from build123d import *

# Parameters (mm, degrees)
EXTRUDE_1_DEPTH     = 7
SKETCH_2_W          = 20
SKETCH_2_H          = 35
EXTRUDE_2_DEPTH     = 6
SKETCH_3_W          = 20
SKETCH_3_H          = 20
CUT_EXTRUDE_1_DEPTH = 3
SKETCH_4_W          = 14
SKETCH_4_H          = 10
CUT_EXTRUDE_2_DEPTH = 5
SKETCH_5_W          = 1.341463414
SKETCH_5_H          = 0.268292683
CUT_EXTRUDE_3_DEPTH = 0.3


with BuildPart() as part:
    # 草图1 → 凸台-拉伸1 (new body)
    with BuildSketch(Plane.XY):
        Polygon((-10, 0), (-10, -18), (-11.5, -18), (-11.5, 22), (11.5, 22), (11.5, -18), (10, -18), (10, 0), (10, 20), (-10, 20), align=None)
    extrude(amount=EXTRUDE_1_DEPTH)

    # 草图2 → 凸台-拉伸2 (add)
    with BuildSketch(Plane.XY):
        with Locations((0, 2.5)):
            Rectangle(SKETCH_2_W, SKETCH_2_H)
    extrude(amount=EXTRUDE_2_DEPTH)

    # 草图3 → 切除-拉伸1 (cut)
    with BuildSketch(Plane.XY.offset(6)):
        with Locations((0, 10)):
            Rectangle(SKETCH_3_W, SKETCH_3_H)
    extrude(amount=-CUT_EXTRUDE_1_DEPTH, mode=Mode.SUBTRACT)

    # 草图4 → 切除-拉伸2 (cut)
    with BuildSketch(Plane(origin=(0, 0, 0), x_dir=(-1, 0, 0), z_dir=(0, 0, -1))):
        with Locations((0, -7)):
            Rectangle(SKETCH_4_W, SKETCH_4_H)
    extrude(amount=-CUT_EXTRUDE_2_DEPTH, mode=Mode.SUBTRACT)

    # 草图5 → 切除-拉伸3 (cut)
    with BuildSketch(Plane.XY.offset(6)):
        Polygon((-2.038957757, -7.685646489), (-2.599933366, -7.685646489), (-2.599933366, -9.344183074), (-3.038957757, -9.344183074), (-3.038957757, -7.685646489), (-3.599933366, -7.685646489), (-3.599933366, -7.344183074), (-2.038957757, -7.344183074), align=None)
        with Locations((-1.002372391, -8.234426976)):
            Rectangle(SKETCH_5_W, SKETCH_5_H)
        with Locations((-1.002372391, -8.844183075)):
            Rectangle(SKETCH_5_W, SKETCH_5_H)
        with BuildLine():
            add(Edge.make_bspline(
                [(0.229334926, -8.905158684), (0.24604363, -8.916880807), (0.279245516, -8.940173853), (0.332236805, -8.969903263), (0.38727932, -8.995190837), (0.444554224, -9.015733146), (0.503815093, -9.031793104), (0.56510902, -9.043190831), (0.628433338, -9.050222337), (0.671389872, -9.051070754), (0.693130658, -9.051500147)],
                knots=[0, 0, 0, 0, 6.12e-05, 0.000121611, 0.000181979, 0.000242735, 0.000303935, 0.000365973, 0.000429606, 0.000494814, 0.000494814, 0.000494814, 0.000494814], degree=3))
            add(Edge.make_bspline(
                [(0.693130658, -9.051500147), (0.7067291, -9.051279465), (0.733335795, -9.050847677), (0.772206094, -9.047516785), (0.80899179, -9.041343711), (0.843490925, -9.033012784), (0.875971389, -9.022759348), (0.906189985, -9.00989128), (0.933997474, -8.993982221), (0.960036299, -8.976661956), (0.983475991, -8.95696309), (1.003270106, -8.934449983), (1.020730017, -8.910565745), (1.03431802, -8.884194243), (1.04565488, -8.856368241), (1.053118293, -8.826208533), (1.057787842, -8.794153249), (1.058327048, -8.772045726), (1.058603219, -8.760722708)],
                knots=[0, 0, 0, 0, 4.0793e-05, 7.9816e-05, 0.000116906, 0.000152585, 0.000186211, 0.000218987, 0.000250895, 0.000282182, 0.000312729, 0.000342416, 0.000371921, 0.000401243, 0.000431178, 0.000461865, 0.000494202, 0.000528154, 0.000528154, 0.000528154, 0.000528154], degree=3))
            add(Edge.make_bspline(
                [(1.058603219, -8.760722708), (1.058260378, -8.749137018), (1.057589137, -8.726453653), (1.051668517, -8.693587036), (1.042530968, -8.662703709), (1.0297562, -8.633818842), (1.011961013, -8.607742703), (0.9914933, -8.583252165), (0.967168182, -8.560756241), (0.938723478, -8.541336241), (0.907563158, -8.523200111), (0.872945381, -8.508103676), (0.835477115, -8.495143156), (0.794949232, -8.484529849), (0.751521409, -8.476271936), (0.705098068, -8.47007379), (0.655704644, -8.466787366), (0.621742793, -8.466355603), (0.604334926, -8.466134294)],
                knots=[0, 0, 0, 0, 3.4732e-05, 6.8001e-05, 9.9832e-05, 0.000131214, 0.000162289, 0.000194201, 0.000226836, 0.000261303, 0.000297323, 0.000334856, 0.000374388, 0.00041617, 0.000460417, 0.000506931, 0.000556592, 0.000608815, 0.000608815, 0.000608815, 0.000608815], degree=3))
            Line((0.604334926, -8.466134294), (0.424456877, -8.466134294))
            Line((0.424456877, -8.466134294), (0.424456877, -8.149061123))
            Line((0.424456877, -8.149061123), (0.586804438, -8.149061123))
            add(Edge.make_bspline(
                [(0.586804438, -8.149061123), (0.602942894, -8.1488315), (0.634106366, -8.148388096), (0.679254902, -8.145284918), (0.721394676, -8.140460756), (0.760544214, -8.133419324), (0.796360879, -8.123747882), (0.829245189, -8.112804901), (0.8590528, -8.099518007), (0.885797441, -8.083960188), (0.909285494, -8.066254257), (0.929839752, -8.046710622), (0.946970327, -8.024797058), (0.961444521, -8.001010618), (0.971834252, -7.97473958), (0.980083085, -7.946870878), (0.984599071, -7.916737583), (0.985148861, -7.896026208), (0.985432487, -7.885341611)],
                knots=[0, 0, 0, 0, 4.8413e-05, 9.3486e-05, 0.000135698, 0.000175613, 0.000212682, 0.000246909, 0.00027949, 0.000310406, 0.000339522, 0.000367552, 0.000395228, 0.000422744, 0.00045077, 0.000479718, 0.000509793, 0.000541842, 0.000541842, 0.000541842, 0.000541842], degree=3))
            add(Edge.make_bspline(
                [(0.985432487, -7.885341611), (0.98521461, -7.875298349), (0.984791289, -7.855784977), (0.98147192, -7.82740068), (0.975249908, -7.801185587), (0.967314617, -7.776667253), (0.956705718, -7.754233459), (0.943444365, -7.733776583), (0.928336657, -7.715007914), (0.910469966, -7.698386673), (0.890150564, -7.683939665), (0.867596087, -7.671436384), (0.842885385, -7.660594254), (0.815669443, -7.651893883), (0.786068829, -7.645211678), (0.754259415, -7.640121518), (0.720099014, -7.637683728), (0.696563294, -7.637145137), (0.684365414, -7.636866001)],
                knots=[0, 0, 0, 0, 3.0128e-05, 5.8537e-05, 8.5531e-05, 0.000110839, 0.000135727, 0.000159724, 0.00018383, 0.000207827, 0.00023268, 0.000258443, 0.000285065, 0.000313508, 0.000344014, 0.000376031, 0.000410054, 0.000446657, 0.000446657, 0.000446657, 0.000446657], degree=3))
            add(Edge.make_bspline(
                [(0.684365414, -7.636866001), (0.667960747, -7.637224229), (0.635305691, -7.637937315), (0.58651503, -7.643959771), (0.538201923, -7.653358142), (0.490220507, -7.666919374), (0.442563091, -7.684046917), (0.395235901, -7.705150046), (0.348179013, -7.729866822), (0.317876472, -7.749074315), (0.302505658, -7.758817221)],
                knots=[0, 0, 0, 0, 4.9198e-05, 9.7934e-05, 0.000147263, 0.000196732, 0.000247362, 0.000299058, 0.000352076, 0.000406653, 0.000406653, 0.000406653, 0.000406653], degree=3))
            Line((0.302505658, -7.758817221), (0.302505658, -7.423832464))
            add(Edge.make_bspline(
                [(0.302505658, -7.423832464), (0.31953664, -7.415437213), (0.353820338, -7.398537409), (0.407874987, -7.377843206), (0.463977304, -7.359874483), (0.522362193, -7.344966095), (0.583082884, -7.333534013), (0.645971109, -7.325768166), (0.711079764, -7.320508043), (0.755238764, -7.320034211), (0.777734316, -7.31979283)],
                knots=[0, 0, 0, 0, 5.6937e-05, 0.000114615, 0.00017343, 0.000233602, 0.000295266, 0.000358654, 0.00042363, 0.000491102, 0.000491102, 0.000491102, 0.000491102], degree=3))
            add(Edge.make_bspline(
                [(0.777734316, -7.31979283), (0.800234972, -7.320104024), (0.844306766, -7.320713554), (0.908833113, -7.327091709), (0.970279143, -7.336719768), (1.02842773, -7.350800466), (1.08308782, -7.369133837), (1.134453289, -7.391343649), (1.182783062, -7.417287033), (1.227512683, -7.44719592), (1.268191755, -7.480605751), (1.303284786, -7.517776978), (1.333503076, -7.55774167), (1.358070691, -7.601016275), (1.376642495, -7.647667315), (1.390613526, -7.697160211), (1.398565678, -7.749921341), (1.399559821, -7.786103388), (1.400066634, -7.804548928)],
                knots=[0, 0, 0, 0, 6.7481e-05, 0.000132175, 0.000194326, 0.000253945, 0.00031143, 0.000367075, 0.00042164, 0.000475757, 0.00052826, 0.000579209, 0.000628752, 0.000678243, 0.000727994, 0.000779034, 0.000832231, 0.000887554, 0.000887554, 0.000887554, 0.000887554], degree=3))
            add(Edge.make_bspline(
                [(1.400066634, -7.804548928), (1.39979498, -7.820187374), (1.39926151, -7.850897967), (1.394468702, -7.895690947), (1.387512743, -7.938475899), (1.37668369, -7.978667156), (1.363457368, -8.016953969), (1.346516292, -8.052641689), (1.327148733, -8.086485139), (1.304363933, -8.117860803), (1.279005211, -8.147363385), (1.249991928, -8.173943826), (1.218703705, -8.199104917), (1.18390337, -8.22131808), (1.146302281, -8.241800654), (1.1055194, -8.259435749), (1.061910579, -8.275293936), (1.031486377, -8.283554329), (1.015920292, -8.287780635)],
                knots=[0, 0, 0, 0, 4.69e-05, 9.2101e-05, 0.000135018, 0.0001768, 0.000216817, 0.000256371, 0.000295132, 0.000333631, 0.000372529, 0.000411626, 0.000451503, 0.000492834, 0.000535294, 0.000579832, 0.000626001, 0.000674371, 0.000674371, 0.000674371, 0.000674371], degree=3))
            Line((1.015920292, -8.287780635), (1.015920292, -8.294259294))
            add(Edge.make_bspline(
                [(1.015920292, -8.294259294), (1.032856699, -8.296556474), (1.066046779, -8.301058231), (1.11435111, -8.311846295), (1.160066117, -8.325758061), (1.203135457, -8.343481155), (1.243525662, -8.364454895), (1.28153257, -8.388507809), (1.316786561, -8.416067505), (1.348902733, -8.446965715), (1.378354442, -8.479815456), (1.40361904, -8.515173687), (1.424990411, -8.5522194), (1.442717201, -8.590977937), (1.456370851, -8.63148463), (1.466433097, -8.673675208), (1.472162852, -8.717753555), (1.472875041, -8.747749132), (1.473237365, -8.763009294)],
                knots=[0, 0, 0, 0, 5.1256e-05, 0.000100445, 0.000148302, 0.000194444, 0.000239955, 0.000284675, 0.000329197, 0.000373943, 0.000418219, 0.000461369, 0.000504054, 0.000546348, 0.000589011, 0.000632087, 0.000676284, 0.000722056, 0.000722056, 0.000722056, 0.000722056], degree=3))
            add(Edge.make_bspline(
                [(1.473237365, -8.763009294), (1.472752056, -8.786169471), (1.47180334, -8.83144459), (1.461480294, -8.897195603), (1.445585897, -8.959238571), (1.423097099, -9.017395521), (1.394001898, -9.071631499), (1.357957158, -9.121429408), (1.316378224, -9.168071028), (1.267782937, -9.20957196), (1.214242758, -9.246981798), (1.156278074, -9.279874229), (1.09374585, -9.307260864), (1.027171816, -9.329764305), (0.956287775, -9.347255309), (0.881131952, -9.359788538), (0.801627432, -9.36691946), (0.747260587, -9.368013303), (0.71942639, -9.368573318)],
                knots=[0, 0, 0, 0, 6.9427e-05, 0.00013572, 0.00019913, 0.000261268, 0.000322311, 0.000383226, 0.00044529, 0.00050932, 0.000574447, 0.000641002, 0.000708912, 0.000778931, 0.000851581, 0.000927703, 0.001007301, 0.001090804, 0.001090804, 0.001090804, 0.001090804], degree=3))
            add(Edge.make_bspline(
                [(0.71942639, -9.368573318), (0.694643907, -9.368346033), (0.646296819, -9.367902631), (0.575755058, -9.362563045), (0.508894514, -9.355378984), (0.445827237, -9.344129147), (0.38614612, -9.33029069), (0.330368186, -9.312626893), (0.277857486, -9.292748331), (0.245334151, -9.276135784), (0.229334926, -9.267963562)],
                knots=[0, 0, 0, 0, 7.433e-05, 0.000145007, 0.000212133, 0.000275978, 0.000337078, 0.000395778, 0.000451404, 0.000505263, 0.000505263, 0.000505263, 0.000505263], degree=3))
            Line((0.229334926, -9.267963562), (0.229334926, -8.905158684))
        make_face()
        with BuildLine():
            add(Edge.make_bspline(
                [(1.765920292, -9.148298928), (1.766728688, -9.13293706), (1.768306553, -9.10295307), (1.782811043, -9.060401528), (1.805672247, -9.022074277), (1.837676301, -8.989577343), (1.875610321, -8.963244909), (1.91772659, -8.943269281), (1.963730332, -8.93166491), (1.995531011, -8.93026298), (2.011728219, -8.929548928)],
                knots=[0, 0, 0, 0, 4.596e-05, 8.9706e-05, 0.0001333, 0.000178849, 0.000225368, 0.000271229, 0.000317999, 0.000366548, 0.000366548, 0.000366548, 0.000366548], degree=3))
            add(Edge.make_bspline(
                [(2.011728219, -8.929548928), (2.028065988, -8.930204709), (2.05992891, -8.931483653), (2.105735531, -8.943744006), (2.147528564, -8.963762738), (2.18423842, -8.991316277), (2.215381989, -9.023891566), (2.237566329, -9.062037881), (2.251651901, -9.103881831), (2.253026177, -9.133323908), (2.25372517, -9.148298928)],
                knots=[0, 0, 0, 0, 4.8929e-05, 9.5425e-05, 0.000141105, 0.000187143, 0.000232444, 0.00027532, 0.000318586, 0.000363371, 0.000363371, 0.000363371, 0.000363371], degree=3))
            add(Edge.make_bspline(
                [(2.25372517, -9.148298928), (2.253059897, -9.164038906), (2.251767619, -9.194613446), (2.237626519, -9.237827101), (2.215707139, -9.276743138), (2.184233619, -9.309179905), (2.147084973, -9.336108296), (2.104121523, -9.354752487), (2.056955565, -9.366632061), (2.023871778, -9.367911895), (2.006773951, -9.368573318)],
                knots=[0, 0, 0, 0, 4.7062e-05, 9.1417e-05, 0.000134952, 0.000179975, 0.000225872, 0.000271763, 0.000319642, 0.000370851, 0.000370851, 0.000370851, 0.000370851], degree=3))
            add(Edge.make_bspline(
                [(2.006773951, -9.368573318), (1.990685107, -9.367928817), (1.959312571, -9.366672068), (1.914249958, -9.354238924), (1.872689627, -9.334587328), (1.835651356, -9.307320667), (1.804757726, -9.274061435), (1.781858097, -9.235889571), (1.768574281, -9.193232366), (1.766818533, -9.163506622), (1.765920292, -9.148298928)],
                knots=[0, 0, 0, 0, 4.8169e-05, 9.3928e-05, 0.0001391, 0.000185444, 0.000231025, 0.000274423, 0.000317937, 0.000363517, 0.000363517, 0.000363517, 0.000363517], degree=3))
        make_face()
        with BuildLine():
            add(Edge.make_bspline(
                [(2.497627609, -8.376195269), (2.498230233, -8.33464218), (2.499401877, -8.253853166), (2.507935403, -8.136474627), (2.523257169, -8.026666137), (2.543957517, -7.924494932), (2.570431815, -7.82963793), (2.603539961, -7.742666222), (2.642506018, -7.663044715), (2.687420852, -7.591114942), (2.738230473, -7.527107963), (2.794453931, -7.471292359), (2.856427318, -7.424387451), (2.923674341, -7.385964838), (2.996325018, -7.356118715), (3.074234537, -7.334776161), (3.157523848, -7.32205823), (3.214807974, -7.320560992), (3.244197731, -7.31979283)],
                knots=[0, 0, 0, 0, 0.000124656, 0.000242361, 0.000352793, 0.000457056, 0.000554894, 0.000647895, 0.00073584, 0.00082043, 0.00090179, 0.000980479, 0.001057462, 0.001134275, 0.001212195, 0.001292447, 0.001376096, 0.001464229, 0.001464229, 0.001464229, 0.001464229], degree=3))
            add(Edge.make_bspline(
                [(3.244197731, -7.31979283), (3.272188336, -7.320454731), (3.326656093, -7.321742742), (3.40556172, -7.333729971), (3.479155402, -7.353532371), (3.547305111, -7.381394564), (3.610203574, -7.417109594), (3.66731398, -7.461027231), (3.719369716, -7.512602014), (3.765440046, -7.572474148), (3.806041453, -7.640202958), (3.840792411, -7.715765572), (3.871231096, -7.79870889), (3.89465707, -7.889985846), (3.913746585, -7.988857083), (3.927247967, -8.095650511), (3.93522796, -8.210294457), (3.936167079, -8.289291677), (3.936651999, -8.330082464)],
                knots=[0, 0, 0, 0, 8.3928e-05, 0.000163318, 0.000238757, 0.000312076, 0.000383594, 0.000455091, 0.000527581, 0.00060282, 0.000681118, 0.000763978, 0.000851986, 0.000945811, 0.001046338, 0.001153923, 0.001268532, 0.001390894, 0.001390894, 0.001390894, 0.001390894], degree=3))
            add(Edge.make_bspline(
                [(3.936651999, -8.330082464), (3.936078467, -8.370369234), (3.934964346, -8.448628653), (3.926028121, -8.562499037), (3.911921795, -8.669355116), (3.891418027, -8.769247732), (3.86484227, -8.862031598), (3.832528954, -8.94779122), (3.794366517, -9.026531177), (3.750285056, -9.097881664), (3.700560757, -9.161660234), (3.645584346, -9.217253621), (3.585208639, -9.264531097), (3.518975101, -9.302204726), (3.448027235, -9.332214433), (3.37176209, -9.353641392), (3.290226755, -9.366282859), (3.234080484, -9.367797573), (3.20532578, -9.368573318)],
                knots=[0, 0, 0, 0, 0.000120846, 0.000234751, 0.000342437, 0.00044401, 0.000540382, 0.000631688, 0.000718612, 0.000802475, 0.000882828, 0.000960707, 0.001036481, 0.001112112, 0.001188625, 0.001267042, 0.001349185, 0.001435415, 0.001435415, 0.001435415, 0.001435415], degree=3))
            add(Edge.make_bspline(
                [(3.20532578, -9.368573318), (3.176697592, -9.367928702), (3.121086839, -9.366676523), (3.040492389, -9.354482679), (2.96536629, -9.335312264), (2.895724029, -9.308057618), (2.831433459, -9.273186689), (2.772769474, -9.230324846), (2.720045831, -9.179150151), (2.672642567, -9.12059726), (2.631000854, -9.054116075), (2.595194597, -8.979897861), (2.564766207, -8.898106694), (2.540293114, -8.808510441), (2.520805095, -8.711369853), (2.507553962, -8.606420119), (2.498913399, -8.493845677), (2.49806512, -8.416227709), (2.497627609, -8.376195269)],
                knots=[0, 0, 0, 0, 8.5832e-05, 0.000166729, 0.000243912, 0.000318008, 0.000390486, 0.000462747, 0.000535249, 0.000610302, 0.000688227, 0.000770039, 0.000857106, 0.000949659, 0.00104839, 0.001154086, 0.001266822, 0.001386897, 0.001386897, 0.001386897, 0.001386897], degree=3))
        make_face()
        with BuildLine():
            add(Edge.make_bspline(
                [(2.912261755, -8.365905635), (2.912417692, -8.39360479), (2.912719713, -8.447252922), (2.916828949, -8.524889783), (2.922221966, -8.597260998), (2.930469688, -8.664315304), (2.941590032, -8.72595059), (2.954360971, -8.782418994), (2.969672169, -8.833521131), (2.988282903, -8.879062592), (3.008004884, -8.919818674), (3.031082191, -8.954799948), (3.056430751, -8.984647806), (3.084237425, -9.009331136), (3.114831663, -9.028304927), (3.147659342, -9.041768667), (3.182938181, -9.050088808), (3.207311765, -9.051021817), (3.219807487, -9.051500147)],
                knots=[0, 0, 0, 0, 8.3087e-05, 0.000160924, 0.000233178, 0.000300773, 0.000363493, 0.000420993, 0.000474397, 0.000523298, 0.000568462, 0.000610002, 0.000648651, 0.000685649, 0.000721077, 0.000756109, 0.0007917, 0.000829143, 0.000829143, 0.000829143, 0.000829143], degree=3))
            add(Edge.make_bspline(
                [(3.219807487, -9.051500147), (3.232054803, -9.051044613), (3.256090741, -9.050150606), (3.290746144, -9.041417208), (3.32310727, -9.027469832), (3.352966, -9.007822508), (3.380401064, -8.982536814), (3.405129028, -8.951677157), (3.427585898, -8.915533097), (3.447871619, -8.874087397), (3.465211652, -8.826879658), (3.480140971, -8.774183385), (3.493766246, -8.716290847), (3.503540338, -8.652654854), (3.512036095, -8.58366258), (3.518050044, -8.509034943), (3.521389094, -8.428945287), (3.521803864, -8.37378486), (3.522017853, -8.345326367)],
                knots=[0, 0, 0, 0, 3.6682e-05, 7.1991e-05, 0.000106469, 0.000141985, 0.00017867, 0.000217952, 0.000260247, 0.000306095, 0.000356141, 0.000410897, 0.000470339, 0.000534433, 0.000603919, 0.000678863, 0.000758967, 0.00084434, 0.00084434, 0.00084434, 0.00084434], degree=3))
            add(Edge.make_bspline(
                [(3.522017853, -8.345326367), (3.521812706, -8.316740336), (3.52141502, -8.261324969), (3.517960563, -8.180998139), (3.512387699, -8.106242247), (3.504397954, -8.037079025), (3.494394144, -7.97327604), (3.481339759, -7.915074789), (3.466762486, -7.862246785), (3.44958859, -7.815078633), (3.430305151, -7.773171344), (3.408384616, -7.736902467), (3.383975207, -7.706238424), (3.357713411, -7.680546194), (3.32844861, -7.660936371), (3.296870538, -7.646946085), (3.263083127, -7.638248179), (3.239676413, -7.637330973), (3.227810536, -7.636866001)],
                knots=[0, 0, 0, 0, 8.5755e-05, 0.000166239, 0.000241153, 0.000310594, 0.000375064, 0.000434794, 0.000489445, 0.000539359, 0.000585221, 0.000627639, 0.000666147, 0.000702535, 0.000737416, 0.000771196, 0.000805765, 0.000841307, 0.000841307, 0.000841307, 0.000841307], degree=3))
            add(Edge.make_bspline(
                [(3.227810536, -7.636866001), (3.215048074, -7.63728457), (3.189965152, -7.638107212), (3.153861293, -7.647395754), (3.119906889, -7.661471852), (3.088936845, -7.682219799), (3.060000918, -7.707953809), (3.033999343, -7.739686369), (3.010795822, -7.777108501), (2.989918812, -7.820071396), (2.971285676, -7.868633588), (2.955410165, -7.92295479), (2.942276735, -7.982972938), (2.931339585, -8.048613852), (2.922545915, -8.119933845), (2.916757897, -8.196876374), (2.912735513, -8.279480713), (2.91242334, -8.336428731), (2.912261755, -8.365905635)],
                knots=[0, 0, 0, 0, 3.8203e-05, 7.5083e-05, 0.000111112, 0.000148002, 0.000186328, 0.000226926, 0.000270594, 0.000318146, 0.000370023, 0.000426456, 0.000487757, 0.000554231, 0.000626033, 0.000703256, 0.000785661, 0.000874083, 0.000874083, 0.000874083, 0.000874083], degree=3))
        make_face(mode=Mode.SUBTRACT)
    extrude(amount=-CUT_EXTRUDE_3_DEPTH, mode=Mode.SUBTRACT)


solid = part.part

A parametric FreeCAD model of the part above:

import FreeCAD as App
import Part
import Sketcher

V = App.Vector

doc = App.newDocument("Part")
body = doc.addObject("PartDesign::Body", "Body")

# Sketch on XY plane
sketch1 = body.newObject("Sketcher::SketchObject", "Sketch")
sketch1.AttachmentSupport = (doc.getObject("XY_Plane"), [""])
sketch1.MapMode = "FlatFace"
sketch1.addGeometry(Part.LineSegment(V(-10, -18, 0), V(-10, 20, 0)), False)
sketch1.addGeometry(Part.LineSegment(V(-10, 20, 0), V(10, 20, 0)), False)
sketch1.addGeometry(Part.LineSegment(V(10, 20, 0), V(10, -18, 0)), False)
sketch1.addGeometry(Part.LineSegment(V(10, -18, 0), V(11.5, -18, 0)), False)
sketch1.addGeometry(Part.LineSegment(V(11.5, -18, 0), V(11.5, 22, 0)), False)
sketch1.addGeometry(Part.LineSegment(V(11.5, 22, 0), V(-11.5, 22, 0)), False)
sketch1.addGeometry(Part.LineSegment(V(-11.5, 22, 0), V(-11.5, -18, 0)), False)
sketch1.addGeometry(Part.LineSegment(V(-11.5, -18, 0), V(-10, -18, 0)), False)
sketch1.addConstraint(Sketcher.Constraint("Coincident", 0, 2, 1, 1))
sketch1.addConstraint(Sketcher.Constraint("Coincident", 1, 2, 2, 1))
sketch1.addConstraint(Sketcher.Constraint("Coincident", 2, 2, 3, 1))
sketch1.addConstraint(Sketcher.Constraint("Coincident", 3, 2, 4, 1))
sketch1.addConstraint(Sketcher.Constraint("Coincident", 4, 2, 5, 1))
sketch1.addConstraint(Sketcher.Constraint("Coincident", 5, 2, 6, 1))
sketch1.addConstraint(Sketcher.Constraint("Coincident", 6, 2, 7, 1))
sketch1.addConstraint(Sketcher.Constraint("Coincident", 7, 2, 0, 1))
sketch1.addConstraint(Sketcher.Constraint("Vertical", 0))
sketch1.addConstraint(Sketcher.Constraint("Horizontal", 1))
sketch1.addConstraint(Sketcher.Constraint("Vertical", 2))
sketch1.addConstraint(Sketcher.Constraint("Horizontal", 3))
sketch1.addConstraint(Sketcher.Constraint("Vertical", 4))
sketch1.addConstraint(Sketcher.Constraint("Horizontal", 5))
sketch1.addConstraint(Sketcher.Constraint("Vertical", 6))
sketch1.addConstraint(Sketcher.Constraint("Horizontal", 7))
sketch1.addConstraint(Sketcher.Constraint("Symmetric", 3, 2, 6, 2, -2))
sketch1.addConstraint(Sketcher.Constraint("Equal", 3, 7))
sketch1.addConstraint(Sketcher.Constraint("DistanceX", 1, 1, 1, 2, 20.0))
sketch1.addConstraint(Sketcher.Constraint("DistanceX", 5, 2, 5, 1, 23.0))
sketch1.addConstraint(Sketcher.Constraint("DistanceY", 0, 1, 0, 2, 38.0))
sketch1.addConstraint(Sketcher.Constraint("DistanceY", 4, 1, 4, 2, 40.0))
sketch1.addConstraint(Sketcher.Constraint("DistanceY", -1, 1, 0, 2, 20.0))
pad1 = body.newObject("PartDesign::Pad", "Pad")
pad1.Profile = sketch1
pad1.Length = 7

# Sketch on XY plane
sketch2 = body.newObject("Sketcher::SketchObject", "Sketch001")
sketch2.AttachmentSupport = (doc.getObject("XY_Plane"), [""])
sketch2.MapMode = "FlatFace"
sketch2.addGeometry(Part.LineSegment(V(-10, 20, 0), V(-10, -15, 0)), False)
sketch2.addGeometry(Part.LineSegment(V(-10, -15, 0), V(10, -15, 0)), False)
sketch2.addGeometry(Part.LineSegment(V(10, -15, 0), V(10, 20, 0)), False)
sketch2.addGeometry(Part.LineSegment(V(10, 20, 0), V(-10, 20, 0)), False)
sketch2.addConstraint(Sketcher.Constraint("Coincident", 0, 2, 1, 1))
sketch2.addConstraint(Sketcher.Constraint("Coincident", 1, 2, 2, 1))
sketch2.addConstraint(Sketcher.Constraint("Coincident", 2, 2, 3, 1))
sketch2.addConstraint(Sketcher.Constraint("Coincident", 3, 2, 0, 1))
sketch2.addConstraint(Sketcher.Constraint("Vertical", 0))
sketch2.addConstraint(Sketcher.Constraint("Horizontal", 1))
sketch2.addConstraint(Sketcher.Constraint("Vertical", 2))
sketch2.addConstraint(Sketcher.Constraint("Horizontal", 3))
sketch2.addConstraint(Sketcher.Constraint("DistanceX", 1, 1, 1, 2, 20.0))
sketch2.addConstraint(Sketcher.Constraint("DistanceY", 0, 2, 0, 1, 35.0))
sketch2.addConstraint(Sketcher.Constraint("DistanceX", 0, 2, -1, 1, 10.0))
sketch2.addConstraint(Sketcher.Constraint("DistanceY", 0, 2, -1, 1, 15.0))
pad2 = body.newObject("PartDesign::Pad", "Pad001")
pad2.Profile = sketch2
pad2.Length = 6

# Sketch on XY plane
sketch3 = body.newObject("Sketcher::SketchObject", "Sketch002")
sketch3.AttachmentSupport = (doc.getObject("XY_Plane"), [""])
sketch3.MapMode = "FlatFace"
sketch3.AttachmentOffset = App.Placement(V(0, 0, 6), App.Rotation())
sketch3.addGeometry(Part.LineSegment(V(-10, 20, 0), V(-10, 0, 0)), False)
sketch3.addGeometry(Part.LineSegment(V(-10, 0, 0), V(10, 0, 0)), False)
sketch3.addGeometry(Part.LineSegment(V(10, 0, 0), V(10, 20, 0)), False)
sketch3.addGeometry(Part.LineSegment(V(10, 20, 0), V(-10, 20, 0)), False)
sketch3.addConstraint(Sketcher.Constraint("Coincident", 0, 2, 1, 1))
sketch3.addConstraint(Sketcher.Constraint("Coincident", 1, 2, 2, 1))
sketch3.addConstraint(Sketcher.Constraint("Coincident", 2, 2, 3, 1))
sketch3.addConstraint(Sketcher.Constraint("Coincident", 3, 2, 0, 1))
sketch3.addConstraint(Sketcher.Constraint("Vertical", 0))
sketch3.addConstraint(Sketcher.Constraint("Horizontal", 1))
sketch3.addConstraint(Sketcher.Constraint("Vertical", 2))
sketch3.addConstraint(Sketcher.Constraint("Horizontal", 3))
sketch3.addConstraint(Sketcher.Constraint("Symmetric", 0, 2, 1, 2, -1, 1))
sketch3.addConstraint(Sketcher.Constraint("Equal", 3, 0))
sketch3.addConstraint(Sketcher.Constraint("DistanceX", 1, 1, 1, 2, 20.0))
pocket1 = body.newObject("PartDesign::Pocket", "Pocket")
pocket1.Profile = sketch3
pocket1.Length = 3

# Sketch on XY plane
sketch4 = body.newObject("Sketcher::SketchObject", "Sketch003")
sketch4.AttachmentSupport = (doc.getObject("XY_Plane"), [""])
sketch4.MapMode = "FlatFace"
sketch4.addGeometry(Part.LineSegment(V(7, -2, 0), V(7, -12, 0)), False)
sketch4.addGeometry(Part.LineSegment(V(7, -12, 0), V(-7, -12, 0)), False)
sketch4.addGeometry(Part.LineSegment(V(-7, -12, 0), V(-7, -2, 0)), False)
sketch4.addGeometry(Part.LineSegment(V(-7, -2, 0), V(7, -2, 0)), False)
sketch4.addConstraint(Sketcher.Constraint("Coincident", 0, 2, 1, 1))
sketch4.addConstraint(Sketcher.Constraint("Coincident", 1, 2, 2, 1))
sketch4.addConstraint(Sketcher.Constraint("Coincident", 2, 2, 3, 1))
sketch4.addConstraint(Sketcher.Constraint("Coincident", 3, 2, 0, 1))
sketch4.addConstraint(Sketcher.Constraint("Vertical", 0))
sketch4.addConstraint(Sketcher.Constraint("Horizontal", 1))
sketch4.addConstraint(Sketcher.Constraint("Vertical", 2))
sketch4.addConstraint(Sketcher.Constraint("Horizontal", 3))
sketch4.addConstraint(Sketcher.Constraint("DistanceX", 1, 2, 1, 1, 14.0))
sketch4.addConstraint(Sketcher.Constraint("DistanceY", 0, 2, 0, 1, 10.0))
sketch4.addConstraint(Sketcher.Constraint("DistanceX", -1, 1, 0, 2, 7.0))
sketch4.addConstraint(Sketcher.Constraint("DistanceY", 0, 2, -1, 1, 12.0))
pocket2 = body.newObject("PartDesign::Pocket", "Pocket001")
pocket2.Profile = sketch4
pocket2.Length = 5
pocket2.Reversed = True

# Sketch on XY plane
sketch5 = body.newObject("Sketcher::SketchObject", "Sketch004")
sketch5.AttachmentSupport = (doc.getObject("XY_Plane"), [""])
sketch5.MapMode = "FlatFace"
sketch5.AttachmentOffset = App.Placement(V(0, 0, 6), App.Rotation())
sketch5.addGeometry(Part.LineSegment(V(-2.599933, -7.685646, 0), V(-2.038958, -7.685646, 0)), False)
sketch5.addGeometry(Part.LineSegment(V(-2.038958, -7.685646, 0), V(-2.038958, -7.344183, 0)), False)
sketch5.addGeometry(Part.LineSegment(V(-2.038958, -7.344183, 0), V(-3.599933, -7.344183, 0)), False)
sketch5.addGeometry(Part.LineSegment(V(-3.599933, -7.344183, 0), V(-3.599933, -7.685646, 0)), False)
sketch5.addGeometry(Part.LineSegment(V(-3.599933, -7.685646, 0), V(-3.038958, -7.685646, 0)), False)
sketch5.addGeometry(Part.LineSegment(V(-3.038958, -7.685646, 0), V(-3.038958, -9.344183, 0)), False)
sketch5.addGeometry(Part.LineSegment(V(-3.038958, -9.344183, 0), V(-2.599933, -9.344183, 0)), False)
sketch5.addGeometry(Part.LineSegment(V(-2.599933, -9.344183, 0), V(-2.599933, -7.685646, 0)), False)
sketch5.addGeometry(Part.LineSegment(V(-1.673104, -8.100281, 0), V(-1.673104, -8.368573, 0)), False)
sketch5.addGeometry(Part.LineSegment(V(-1.673104, -8.368573, 0), V(-0.331641, -8.368573, 0)), False)
sketch5.addGeometry(Part.LineSegment(V(-0.331641, -8.368573, 0), V(-0.331641, -8.100281, 0)), False)
sketch5.addGeometry(Part.LineSegment(V(-0.331641, -8.100281, 0), V(-1.673104, -8.100281, 0)), False)
sketch5.addGeometry(Part.LineSegment(V(-1.673104, -8.710037, 0), V(-1.673104, -8.978329, 0)), False)
sketch5.addGeometry(Part.LineSegment(V(-1.673104, -8.978329, 0), V(-0.331641, -8.978329, 0)), False)
sketch5.addGeometry(Part.LineSegment(V(-0.331641, -8.978329, 0), V(-0.331641, -8.710037, 0)), False)
sketch5.addGeometry(Part.LineSegment(V(-0.331641, -8.710037, 0), V(-1.673104, -8.710037, 0)), False)
sketch5.addGeometry(Part.BSplineCurve([V(0.229335, -8.905159, 0), V(0.246044, -8.916881, 0), V(0.279246, -8.940174, 0), V(0.332237, -8.969903, 0), V(0.387279, -8.995191, 0), V(0.444554, -9.015733, 0), V(0.503815, -9.031793, 0), V(0.565109, -9.043191, 0), V(0.628433, -9.050222, 0), V(0.67139, -9.051071, 0), V(0.693131, -9.0515, 0)], [4, 1, 1, 1, 1, 1, 1, 1, 4], [0, 0.0000612, 0.000121611, 0.000181979, 0.000242735, 0.000303935, 0.000365973, 0.000429606, 0.000494814], False, 3, [1, 1, 1, 1, 1, 1, 1, 1, 1, 1, 1], False), False)
sketch5.addGeometry(Part.LineSegment(V(0.229335, -8.905159, 0), V(0.229335, -9.267964, 0)), False)
sketch5.addGeometry(Part.BSplineCurve([V(0.719426, -9.368573, 0), V(0.694644, -9.368346, 0), V(0.646297, -9.367903, 0), V(0.575755, -9.362563, 0), V(0.508895, -9.355379, 0), V(0.445827, -9.344129, 0), V(0.386146, -9.330291, 0), V(0.330368, -9.312627, 0), V(0.277857, -9.292748, 0), V(0.245334, -9.276136, 0), V(0.229335, -9.267964, 0)], [4, 1, 1, 1, 1, 1, 1, 1, 4], [0, 0.00007433, 0.000145007, 0.000212133, 0.000275978, 0.000337078, 0.000395778, 0.000451404, 0.000505263], False, 3, [1, 1, 1, 1, 1, 1, 1, 1, 1, 1, 1], False), False)
sketch5.addGeometry(Part.BSplineCurve([V(1.473237, -8.763009, 0), V(1.472752, -8.786169, 0), V(1.471803, -8.831445, 0), V(1.46148, -8.897196, 0), V(1.445586, -8.959239, 0), V(1.423097, -9.017396, 0), V(1.394002, -9.071631, 0), V(1.357957, -9.121429, 0), V(1.316378, -9.168071, 0), V(1.267783, -9.209572, 0), V(1.214243, -9.246982, 0), V(1.156278, -9.279874, 0), V(1.093746, -9.307261, 0), V(1.027172, -9.329764, 0), V(0.956288, -9.347255, 0), V(0.881132, -9.359789, 0), V(0.801627, -9.366919, 0), V(0.747261, -9.368013, 0), V(0.719426, -9.368573, 0)], [4, 1, 1, 1, 1, 1, 1, 1, 1, 1, 1, 1, 1, 1, 1, 1, 4], [0, 0.000069427, 0.00013572, 0.00019913, 0.000261268, 0.000322311, 0.000383226, 0.00044529, 0.00050932, 0.000574447, 0.000641002, 0.000708912, 0.000778931, 0.000851581, 0.000927703, 0.001007301, 0.001090804], False, 3, [1, 1, 1, 1, 1, 1, 1, 1, 1, 1, 1, 1, 1, 1, 1, 1, 1, 1, 1], False), False)
sketch5.addGeometry(Part.BSplineCurve([V(1.01592, -8.294259, 0), V(1.032857, -8.296556, 0), V(1.066047, -8.301058, 0), V(1.114351, -8.311846, 0), V(1.160066, -8.325758, 0), V(1.203135, -8.343481, 0), V(1.243526, -8.364455, 0), V(1.281533, -8.388508, 0), V(1.316787, -8.416068, 0), V(1.348903, -8.446966, 0), V(1.378354, -8.479815, 0), V(1.403619, -8.515174, 0), V(1.42499, -8.552219, 0), V(1.442717, -8.590978, 0), V(1.456371, -8.631485, 0), V(1.466433, -8.673675, 0), V(1.472163, -8.717754, 0), V(1.472875, -8.747749, 0), V(1.473237, -8.763009, 0)], [4, 1, 1, 1, 1, 1, 1, 1, 1, 1, 1, 1, 1, 1, 1, 1, 4], [0, 0.000051256, 0.000100445, 0.000148302, 0.000194444, 0.000239955, 0.000284675, 0.000329197, 0.000373943, 0.000418219, 0.000461369, 0.000504054, 0.000546348, 0.000589011, 0.000632087, 0.000676284, 0.000722056], False, 3, [1, 1, 1, 1, 1, 1, 1, 1, 1, 1, 1, 1, 1, 1, 1, 1, 1, 1, 1], False), False)
sketch5.addGeometry(Part.LineSegment(V(1.01592, -8.294259, 0), V(1.01592, -8.287781, 0)), False)
sketch5.addGeometry(Part.BSplineCurve([V(1.400067, -7.804549, 0), V(1.399795, -7.820187, 0), V(1.399262, -7.850898, 0), V(1.394469, -7.895691, 0), V(1.387513, -7.938476, 0), V(1.376684, -7.978667, 0), V(1.363457, -8.016954, 0), V(1.346516, -8.052642, 0), V(1.327149, -8.086485, 0), V(1.304364, -8.117861, 0), V(1.279005, -8.147363, 0), V(1.249992, -8.173944, 0), V(1.218704, -8.199105, 0), V(1.183903, -8.221318, 0), V(1.146302, -8.241801, 0), V(1.105519, -8.259436, 0), V(1.061911, -8.275294, 0), V(1.031486, -8.283554, 0), V(1.01592, -8.287781, 0)], [4, 1, 1, 1, 1, 1, 1, 1, 1, 1, 1, 1, 1, 1, 1, 1, 4], [0, 0.0000469, 0.000092101, 0.000135018, 0.0001768, 0.000216817, 0.000256371, 0.000295132, 0.000333631, 0.000372529, 0.000411626, 0.000451503, 0.000492834, 0.000535294, 0.000579832, 0.000626001, 0.000674371], False, 3, [1, 1, 1, 1, 1, 1, 1, 1, 1, 1, 1, 1, 1, 1, 1, 1, 1, 1, 1], False), False)
sketch5.addGeometry(Part.BSplineCurve([V(0.777734, -7.319793, 0), V(0.800235, -7.320104, 0), V(0.844307, -7.320714, 0), V(0.908833, -7.327092, 0), V(0.970279, -7.33672, 0), V(1.028428, -7.3508, 0), V(1.083088, -7.369134, 0), V(1.134453, -7.391344, 0), V(1.182783, -7.417287, 0), V(1.227513, -7.447196, 0), V(1.268192, -7.480606, 0), V(1.303285, -7.517777, 0), V(1.333503, -7.557742, 0), V(1.358071, -7.601016, 0), V(1.376642, -7.647667, 0), V(1.390614, -7.69716, 0), V(1.398566, -7.749921, 0), V(1.39956, -7.786103, 0), V(1.400067, -7.804549, 0)], [4, 1, 1, 1, 1, 1, 1, 1, 1, 1, 1, 1, 1, 1, 1, 1, 4], [0, 0.000067481, 0.000132175, 0.000194326, 0.000253945, 0.00031143, 0.000367075, 0.00042164, 0.000475757, 0.00052826, 0.000579209, 0.000628752, 0.000678243, 0.000727994, 0.000779034, 0.000832231, 0.000887554], False, 3, [1, 1, 1, 1, 1, 1, 1, 1, 1, 1, 1, 1, 1, 1, 1, 1, 1, 1, 1], False), False)
sketch5.addGeometry(Part.BSplineCurve([V(0.302506, -7.423832, 0), V(0.319537, -7.415437, 0), V(0.35382, -7.398537, 0), V(0.407875, -7.377843, 0), V(0.463977, -7.359874, 0), V(0.522362, -7.344966, 0), V(0.583083, -7.333534, 0), V(0.645971, -7.325768, 0), V(0.71108, -7.320508, 0), V(0.755239, -7.320034, 0), V(0.777734, -7.319793, 0)], [4, 1, 1, 1, 1, 1, 1, 1, 4], [0, 0.000056937, 0.000114615, 0.00017343, 0.000233602, 0.000295266, 0.000358654, 0.00042363, 0.000491102], False, 3, [1, 1, 1, 1, 1, 1, 1, 1, 1, 1, 1], False), False)
sketch5.addGeometry(Part.LineSegment(V(0.302506, -7.423832, 0), V(0.302506, -7.758817, 0)), False)
sketch5.addGeometry(Part.BSplineCurve([V(0.684365, -7.636866, 0), V(0.667961, -7.637224, 0), V(0.635306, -7.637937, 0), V(0.586515, -7.64396, 0), V(0.538202, -7.653358, 0), V(0.490221, -7.666919, 0), V(0.442563, -7.684047, 0), V(0.395236, -7.70515, 0), V(0.348179, -7.729867, 0), V(0.317876, -7.749074, 0), V(0.302506, -7.758817, 0)], [4, 1, 1, 1, 1, 1, 1, 1, 4], [0, 0.000049198, 0.000097934, 0.000147263, 0.000196732, 0.000247362, 0.000299058, 0.000352076, 0.000406653], False, 3, [1, 1, 1, 1, 1, 1, 1, 1, 1, 1, 1], False), False)
sketch5.addGeometry(Part.BSplineCurve([V(0.985432, -7.885342, 0), V(0.985215, -7.875298, 0), V(0.984791, -7.855785, 0), V(0.981472, -7.827401, 0), V(0.97525, -7.801186, 0), V(0.967315, -7.776667, 0), V(0.956706, -7.754233, 0), V(0.943444, -7.733777, 0), V(0.928337, -7.715008, 0), V(0.91047, -7.698387, 0), V(0.890151, -7.68394, 0), V(0.867596, -7.671436, 0), V(0.842885, -7.660594, 0), V(0.815669, -7.651894, 0), V(0.786069, -7.645212, 0), V(0.754259, -7.640122, 0), V(0.720099, -7.637684, 0), V(0.696563, -7.637145, 0), V(0.684365, -7.636866, 0)], [4, 1, 1, 1, 1, 1, 1, 1, 1, 1, 1, 1, 1, 1, 1, 1, 4], [0, 0.000030128, 0.000058537, 0.000085531, 0.000110839, 0.000135727, 0.000159724, 0.00018383, 0.000207827, 0.00023268, 0.000258443, 0.000285065, 0.000313508, 0.000344014, 0.000376031, 0.000410054, 0.000446657], False, 3, [1, 1, 1, 1, 1, 1, 1, 1, 1, 1, 1, 1, 1, 1, 1, 1, 1, 1, 1], False), False)
sketch5.addGeometry(Part.BSplineCurve([V(0.586804, -8.149061, 0), V(0.602943, -8.148832, 0), V(0.634106, -8.148388, 0), V(0.679255, -8.145285, 0), V(0.721395, -8.140461, 0), V(0.760544, -8.133419, 0), V(0.796361, -8.123748, 0), V(0.829245, -8.112805, 0), V(0.859053, -8.099518, 0), V(0.885797, -8.08396, 0), V(0.909285, -8.066254, 0), V(0.92984, -8.046711, 0), V(0.94697, -8.024797, 0), V(0.961445, -8.001011, 0), V(0.971834, -7.97474, 0), V(0.980083, -7.946871, 0), V(0.984599, -7.916738, 0), V(0.985149, -7.896026, 0), V(0.985432, -7.885342, 0)], [4, 1, 1, 1, 1, 1, 1, 1, 1, 1, 1, 1, 1, 1, 1, 1, 4], [0, 0.000048413, 0.000093486, 0.000135698, 0.000175613, 0.000212682, 0.000246909, 0.00027949, 0.000310406, 0.000339522, 0.000367552, 0.000395228, 0.000422744, 0.00045077, 0.000479718, 0.000509793, 0.000541842], False, 3, [1, 1, 1, 1, 1, 1, 1, 1, 1, 1, 1, 1, 1, 1, 1, 1, 1, 1, 1], False), False)
sketch5.addGeometry(Part.LineSegment(V(0.586804, -8.149061, 0), V(0.424457, -8.149061, 0)), False)
sketch5.addGeometry(Part.LineSegment(V(0.424457, -8.149061, 0), V(0.424457, -8.466134, 0)), False)
sketch5.addGeometry(Part.LineSegment(V(0.424457, -8.466134, 0), V(0.604335, -8.466134, 0)), False)
sketch5.addGeometry(Part.BSplineCurve([V(1.058603, -8.760723, 0), V(1.05826, -8.749137, 0), V(1.057589, -8.726454, 0), V(1.051669, -8.693587, 0), V(1.042531, -8.662704, 0), V(1.029756, -8.633819, 0), V(1.011961, -8.607743, 0), V(0.991493, -8.583252, 0), V(0.967168, -8.560756, 0), V(0.938723, -8.541336, 0), V(0.907563, -8.5232, 0), V(0.872945, -8.508104, 0), V(0.835477, -8.495143, 0), V(0.794949, -8.48453, 0), V(0.751521, -8.476272, 0), V(0.705098, -8.470074, 0), V(0.655705, -8.466787, 0), V(0.621743, -8.466356, 0), V(0.604335, -8.466134, 0)], [4, 1, 1, 1, 1, 1, 1, 1, 1, 1, 1, 1, 1, 1, 1, 1, 4], [0, 0.000034732, 0.000068001, 0.000099832, 0.000131214, 0.000162289, 0.000194201, 0.000226836, 0.000261303, 0.000297323, 0.000334856, 0.000374388, 0.00041617, 0.000460417, 0.000506931, 0.000556592, 0.000608815], False, 3, [1, 1, 1, 1, 1, 1, 1, 1, 1, 1, 1, 1, 1, 1, 1, 1, 1, 1, 1], False), False)
sketch5.addGeometry(Part.BSplineCurve([V(0.693131, -9.0515, 0), V(0.706729, -9.051279, 0), V(0.733336, -9.050848, 0), V(0.772206, -9.047517, 0), V(0.808992, -9.041344, 0), V(0.843491, -9.033013, 0), V(0.875971, -9.022759, 0), V(0.90619, -9.009891, 0), V(0.933997, -8.993982, 0), V(0.960036, -8.976662, 0), V(0.983476, -8.956963, 0), V(1.00327, -8.93445, 0), V(1.02073, -8.910566, 0), V(1.034318, -8.884194, 0), V(1.045655, -8.856368, 0), V(1.053118, -8.826209, 0), V(1.057788, -8.794153, 0), V(1.058327, -8.772046, 0), V(1.058603, -8.760723, 0)], [4, 1, 1, 1, 1, 1, 1, 1, 1, 1, 1, 1, 1, 1, 1, 1, 4], [0, 0.000040793, 0.000079816, 0.000116906, 0.000152585, 0.000186211, 0.000218987, 0.000250895, 0.000282182, 0.000312729, 0.000342416, 0.000371921, 0.000401243, 0.000431178, 0.000461865, 0.000494202, 0.000528154], False, 3, [1, 1, 1, 1, 1, 1, 1, 1, 1, 1, 1, 1, 1, 1, 1, 1, 1, 1, 1], False), False)
sketch5.addGeometry(Part.BSplineCurve([V(1.76592, -9.148299, 0), V(1.766729, -9.132937, 0), V(1.768307, -9.102953, 0), V(1.782811, -9.060402, 0), V(1.805672, -9.022074, 0), V(1.837676, -8.989577, 0), V(1.87561, -8.963245, 0), V(1.917727, -8.943269, 0), V(1.96373, -8.931665, 0), V(1.995531, -8.930263, 0), V(2.011728, -8.929549, 0)], [4, 1, 1, 1, 1, 1, 1, 1, 4], [0, 0.00004596, 0.000089706, 0.0001333, 0.000178849, 0.000225368, 0.000271229, 0.000317999, 0.000366548], False, 3, [1, 1, 1, 1, 1, 1, 1, 1, 1, 1, 1], False), False)
sketch5.addGeometry(Part.BSplineCurve([V(2.006774, -9.368573, 0), V(1.990685, -9.367929, 0), V(1.959313, -9.366672, 0), V(1.91425, -9.354239, 0), V(1.87269, -9.334587, 0), V(1.835651, -9.307321, 0), V(1.804758, -9.274061, 0), V(1.781858, -9.23589, 0), V(1.768574, -9.193232, 0), V(1.766819, -9.163507, 0), V(1.76592, -9.148299, 0)], [4, 1, 1, 1, 1, 1, 1, 1, 4], [0, 0.000048169, 0.000093928, 0.0001391, 0.000185444, 0.000231025, 0.000274423, 0.000317937, 0.000363517], False, 3, [1, 1, 1, 1, 1, 1, 1, 1, 1, 1, 1], False), False)
sketch5.addGeometry(Part.BSplineCurve([V(2.253725, -9.148299, 0), V(2.25306, -9.164039, 0), V(2.251768, -9.194613, 0), V(2.237627, -9.237827, 0), V(2.215707, -9.276743, 0), V(2.184234, -9.30918, 0), V(2.147085, -9.336108, 0), V(2.104122, -9.354752, 0), V(2.056956, -9.366632, 0), V(2.023872, -9.367912, 0), V(2.006774, -9.368573, 0)], [4, 1, 1, 1, 1, 1, 1, 1, 4], [0, 0.000047062, 0.000091417, 0.000134952, 0.000179975, 0.000225872, 0.000271763, 0.000319642, 0.000370851], False, 3, [1, 1, 1, 1, 1, 1, 1, 1, 1, 1, 1], False), False)
sketch5.addGeometry(Part.BSplineCurve([V(2.011728, -8.929549, 0), V(2.028066, -8.930205, 0), V(2.059929, -8.931484, 0), V(2.105736, -8.943744, 0), V(2.147529, -8.963763, 0), V(2.184238, -8.991316, 0), V(2.215382, -9.023892, 0), V(2.237566, -9.062038, 0), V(2.251652, -9.103882, 0), V(2.253026, -9.133324, 0), V(2.253725, -9.148299, 0)], [4, 1, 1, 1, 1, 1, 1, 1, 4], [0, 0.000048929, 0.000095425, 0.000141105, 0.000187143, 0.000232444, 0.00027532, 0.000318586, 0.000363371], False, 3, [1, 1, 1, 1, 1, 1, 1, 1, 1, 1, 1], False), False)
sketch5.addGeometry(Part.BSplineCurve([V(2.497628, -8.376195, 0), V(2.49823, -8.334642, 0), V(2.499402, -8.253853, 0), V(2.507935, -8.136475, 0), V(2.523257, -8.026666, 0), V(2.543958, -7.924495, 0), V(2.570432, -7.829638, 0), V(2.60354, -7.742666, 0), V(2.642506, -7.663045, 0), V(2.687421, -7.591115, 0), V(2.73823, -7.527108, 0), V(2.794454, -7.471292, 0), V(2.856427, -7.424387, 0), V(2.923674, -7.385965, 0), V(2.996325, -7.356119, 0), V(3.074235, -7.334776, 0), V(3.157524, -7.322058, 0), V(3.214808, -7.320561, 0), V(3.244198, -7.319793, 0)], [4, 1, 1, 1, 1, 1, 1, 1, 1, 1, 1, 1, 1, 1, 1, 1, 4], [0, 0.000124656, 0.000242361, 0.000352793, 0.000457056, 0.000554894, 0.000647895, 0.00073584, 0.00082043, 0.00090179, 0.000980479, 0.001057462, 0.001134275, 0.001212195, 0.001292447, 0.001376096, 0.001464229], False, 3, [1, 1, 1, 1, 1, 1, 1, 1, 1, 1, 1, 1, 1, 1, 1, 1, 1, 1, 1], False), False)
sketch5.addGeometry(Part.BSplineCurve([V(3.205326, -9.368573, 0), V(3.176698, -9.367929, 0), V(3.121087, -9.366677, 0), V(3.040492, -9.354483, 0), V(2.965366, -9.335312, 0), V(2.895724, -9.308058, 0), V(2.831433, -9.273187, 0), V(2.772769, -9.230325, 0), V(2.720046, -9.17915, 0), V(2.672643, -9.120597, 0), V(2.631001, -9.054116, 0), V(2.595195, -8.979898, 0), V(2.564766, -8.898107, 0), V(2.540293, -8.80851, 0), V(2.520805, -8.71137, 0), V(2.507554, -8.60642, 0), V(2.498913, -8.493846, 0), V(2.498065, -8.416228, 0), V(2.497628, -8.376195, 0)], [4, 1, 1, 1, 1, 1, 1, 1, 1, 1, 1, 1, 1, 1, 1, 1, 4], [0, 0.000085832, 0.000166729, 0.000243912, 0.000318008, 0.000390486, 0.000462747, 0.000535249, 0.000610302, 0.000688227, 0.000770039, 0.000857106, 0.000949659, 0.00104839, 0.001154086, 0.001266822, 0.001386897], False, 3, [1, 1, 1, 1, 1, 1, 1, 1, 1, 1, 1, 1, 1, 1, 1, 1, 1, 1, 1], False), False)
sketch5.addGeometry(Part.BSplineCurve([V(3.936652, -8.330082, 0), V(3.936078, -8.370369, 0), V(3.934964, -8.448629, 0), V(3.926028, -8.562499, 0), V(3.911922, -8.669355, 0), V(3.891418, -8.769248, 0), V(3.864842, -8.862032, 0), V(3.832529, -8.947791, 0), V(3.794367, -9.026531, 0), V(3.750285, -9.097882, 0), V(3.700561, -9.16166, 0), V(3.645584, -9.217254, 0), V(3.585209, -9.264531, 0), V(3.518975, -9.302205, 0), V(3.448027, -9.332214, 0), V(3.371762, -9.353641, 0), V(3.290227, -9.366283, 0), V(3.23408, -9.367798, 0), V(3.205326, -9.368573, 0)], [4, 1, 1, 1, 1, 1, 1, 1, 1, 1, 1, 1, 1, 1, 1, 1, 4], [0, 0.000120846, 0.000234751, 0.000342437, 0.00044401, 0.000540382, 0.000631688, 0.000718612, 0.000802475, 0.000882828, 0.000960707, 0.001036481, 0.001112112, 0.001188625, 0.001267042, 0.001349185, 0.001435415], False, 3, [1, 1, 1, 1, 1, 1, 1, 1, 1, 1, 1, 1, 1, 1, 1, 1, 1, 1, 1], False), False)
sketch5.addGeometry(Part.BSplineCurve([V(3.244198, -7.319793, 0), V(3.272188, -7.320455, 0), V(3.326656, -7.321743, 0), V(3.405562, -7.33373, 0), V(3.479155, -7.353532, 0), V(3.547305, -7.381395, 0), V(3.610204, -7.41711, 0), V(3.667314, -7.461027, 0), V(3.71937, -7.512602, 0), V(3.76544, -7.572474, 0), V(3.806041, -7.640203, 0), V(3.840792, -7.715766, 0), V(3.871231, -7.798709, 0), V(3.894657, -7.889986, 0), V(3.913747, -7.988857, 0), V(3.927248, -8.095651, 0), V(3.935228, -8.210294, 0), V(3.936167, -8.289292, 0), V(3.936652, -8.330082, 0)], [4, 1, 1, 1, 1, 1, 1, 1, 1, 1, 1, 1, 1, 1, 1, 1, 4], [0, 0.000083928, 0.000163318, 0.000238757, 0.000312076, 0.000383594, 0.000455091, 0.000527581, 0.00060282, 0.000681118, 0.000763978, 0.000851986, 0.000945811, 0.001046338, 0.001153923, 0.001268532, 0.001390894], False, 3, [1, 1, 1, 1, 1, 1, 1, 1, 1, 1, 1, 1, 1, 1, 1, 1, 1, 1, 1], False), False)
sketch5.addGeometry(Part.BSplineCurve([V(3.227811, -7.636866, 0), V(3.215048, -7.637285, 0), V(3.189965, -7.638107, 0), V(3.153861, -7.647396, 0), V(3.119907, -7.661472, 0), V(3.088937, -7.68222, 0), V(3.060001, -7.707954, 0), V(3.033999, -7.739686, 0), V(3.010796, -7.777109, 0), V(2.989919, -7.820071, 0), V(2.971286, -7.868634, 0), V(2.95541, -7.922955, 0), V(2.942277, -7.982973, 0), V(2.93134, -8.048614, 0), V(2.922546, -8.119934, 0), V(2.916758, -8.196876, 0), V(2.912736, -8.279481, 0), V(2.912423, -8.336429, 0), V(2.912262, -8.365906, 0)], [4, 1, 1, 1, 1, 1, 1, 1, 1, 1, 1, 1, 1, 1, 1, 1, 4], [0, 0.000038203, 0.000075083, 0.000111112, 0.000148002, 0.000186328, 0.000226926, 0.000270594, 0.000318146, 0.000370023, 0.000426456, 0.000487757, 0.000554231, 0.000626033, 0.000703256, 0.000785661, 0.000874083], False, 3, [1, 1, 1, 1, 1, 1, 1, 1, 1, 1, 1, 1, 1, 1, 1, 1, 1, 1, 1], False), False)
sketch5.addGeometry(Part.BSplineCurve([V(3.522018, -8.345326, 0), V(3.521813, -8.31674, 0), V(3.521415, -8.261325, 0), V(3.517961, -8.180998, 0), V(3.512388, -8.106242, 0), V(3.504398, -8.037079, 0), V(3.494394, -7.973276, 0), V(3.48134, -7.915075, 0), V(3.466762, -7.862247, 0), V(3.449589, -7.815079, 0), V(3.430305, -7.773171, 0), V(3.408385, -7.736902, 0), V(3.383975, -7.706238, 0), V(3.357713, -7.680546, 0), V(3.328449, -7.660936, 0), V(3.296871, -7.646946, 0), V(3.263083, -7.638248, 0), V(3.239676, -7.637331, 0), V(3.227811, -7.636866, 0)], [4, 1, 1, 1, 1, 1, 1, 1, 1, 1, 1, 1, 1, 1, 1, 1, 4], [0, 0.000085755, 0.000166239, 0.000241153, 0.000310594, 0.000375064, 0.000434794, 0.000489445, 0.000539359, 0.000585221, 0.000627639, 0.000666147, 0.000702535, 0.000737416, 0.000771196, 0.000805765, 0.000841307], False, 3, [1, 1, 1, 1, 1, 1, 1, 1, 1, 1, 1, 1, 1, 1, 1, 1, 1, 1, 1], False), False)
sketch5.addGeometry(Part.BSplineCurve([V(3.219807, -9.0515, 0), V(3.232055, -9.051045, 0), V(3.256091, -9.050151, 0), V(3.290746, -9.041417, 0), V(3.323107, -9.02747, 0), V(3.352966, -9.007823, 0), V(3.380401, -8.982537, 0), V(3.405129, -8.951677, 0), V(3.427586, -8.915533, 0), V(3.447872, -8.874087, 0), V(3.465212, -8.82688, 0), V(3.480141, -8.774183, 0), V(3.493766, -8.716291, 0), V(3.50354, -8.652655, 0), V(3.512036, -8.583663, 0), V(3.51805, -8.509035, 0), V(3.521389, -8.428945, 0), V(3.521804, -8.373785, 0), V(3.522018, -8.345326, 0)], [4, 1, 1, 1, 1, 1, 1, 1, 1, 1, 1, 1, 1, 1, 1, 1, 4], [0, 0.000036682, 0.000071991, 0.000106469, 0.000141985, 0.00017867, 0.000217952, 0.000260247, 0.000306095, 0.000356141, 0.000410897, 0.000470339, 0.000534433, 0.000603919, 0.000678863, 0.000758967, 0.00084434], False, 3, [1, 1, 1, 1, 1, 1, 1, 1, 1, 1, 1, 1, 1, 1, 1, 1, 1, 1, 1], False), False)
sketch5.addGeometry(Part.BSplineCurve([V(2.912262, -8.365906, 0), V(2.912418, -8.393605, 0), V(2.91272, -8.447253, 0), V(2.916829, -8.52489, 0), V(2.922222, -8.597261, 0), V(2.93047, -8.664315, 0), V(2.94159, -8.725951, 0), V(2.954361, -8.782419, 0), V(2.969672, -8.833521, 0), V(2.988283, -8.879063, 0), V(3.008005, -8.919819, 0), V(3.031082, -8.9548, 0), V(3.056431, -8.984648, 0), V(3.084237, -9.009331, 0), V(3.114832, -9.028305, 0), V(3.147659, -9.041769, 0), V(3.182938, -9.050089, 0), V(3.207312, -9.051022, 0), V(3.219807, -9.0515, 0)], [4, 1, 1, 1, 1, 1, 1, 1, 1, 1, 1, 1, 1, 1, 1, 1, 4], [0, 0.000083087, 0.000160924, 0.000233178, 0.000300773, 0.000363493, 0.000420993, 0.000474397, 0.000523298, 0.000568462, 0.000610002, 0.000648651, 0.000685649, 0.000721077, 0.000756109, 0.0007917, 0.000829143], False, 3, [1, 1, 1, 1, 1, 1, 1, 1, 1, 1, 1, 1, 1, 1, 1, 1, 1, 1, 1], False), False)
sketch5.addConstraint(Sketcher.Constraint("Block", 16))
sketch5.addConstraint(Sketcher.Constraint("Block", 18))
sketch5.addConstraint(Sketcher.Constraint("Block", 19))
sketch5.addConstraint(Sketcher.Constraint("Block", 20))
sketch5.addConstraint(Sketcher.Constraint("Block", 22))
sketch5.addConstraint(Sketcher.Constraint("Block", 23))
sketch5.addConstraint(Sketcher.Constraint("Block", 24))
sketch5.addConstraint(Sketcher.Constraint("Block", 26))
sketch5.addConstraint(Sketcher.Constraint("Block", 27))
sketch5.addConstraint(Sketcher.Constraint("Block", 28))
sketch5.addConstraint(Sketcher.Constraint("Block", 32))
sketch5.addConstraint(Sketcher.Constraint("Block", 33))
sketch5.addConstraint(Sketcher.Constraint("Block", 34))
sketch5.addConstraint(Sketcher.Constraint("Block", 35))
sketch5.addConstraint(Sketcher.Constraint("Block", 36))
sketch5.addConstraint(Sketcher.Constraint("Block", 37))
sketch5.addConstraint(Sketcher.Constraint("Block", 38))
sketch5.addConstraint(Sketcher.Constraint("Block", 39))
sketch5.addConstraint(Sketcher.Constraint("Block", 40))
sketch5.addConstraint(Sketcher.Constraint("Block", 41))
sketch5.addConstraint(Sketcher.Constraint("Block", 42))
sketch5.addConstraint(Sketcher.Constraint("Block", 43))
sketch5.addConstraint(Sketcher.Constraint("Block", 44))
sketch5.addConstraint(Sketcher.Constraint("Block", 45))
sketch5.addConstraint(Sketcher.Constraint("Coincident", 0, 2, 1, 1))
sketch5.addConstraint(Sketcher.Constraint("Coincident", 1, 2, 2, 1))
sketch5.addConstraint(Sketcher.Constraint("Coincident", 2, 2, 3, 1))
sketch5.addConstraint(Sketcher.Constraint("Coincident", 3, 2, 4, 1))
sketch5.addConstraint(Sketcher.Constraint("Coincident", 4, 2, 5, 1))
sketch5.addConstraint(Sketcher.Constraint("Coincident", 5, 2, 6, 1))
sketch5.addConstraint(Sketcher.Constraint("Coincident", 6, 2, 7, 1))
sketch5.addConstraint(Sketcher.Constraint("Coincident", 7, 2, 0, 1))
sketch5.addConstraint(Sketcher.Constraint("Coincident", 8, 2, 9, 1))
sketch5.addConstraint(Sketcher.Constraint("Coincident", 9, 2, 10, 1))
sketch5.addConstraint(Sketcher.Constraint("Coincident", 10, 2, 11, 1))
sketch5.addConstraint(Sketcher.Constraint("Coincident", 11, 2, 8, 1))
sketch5.addConstraint(Sketcher.Constraint("Coincident", 12, 2, 13, 1))
sketch5.addConstraint(Sketcher.Constraint("Coincident", 13, 2, 14, 1))
sketch5.addConstraint(Sketcher.Constraint("Coincident", 14, 2, 15, 1))
sketch5.addConstraint(Sketcher.Constraint("Coincident", 15, 2, 12, 1))
sketch5.addConstraint(Sketcher.Constraint("Coincident", 16, 1, 17, 1))
sketch5.addConstraint(Sketcher.Constraint("Coincident", 17, 2, 18, 2))
sketch5.addConstraint(Sketcher.Constraint("Coincident", 20, 1, 21, 1))
sketch5.addConstraint(Sketcher.Constraint("Coincident", 21, 2, 22, 2))
sketch5.addConstraint(Sketcher.Constraint("Coincident", 24, 1, 25, 1))
sketch5.addConstraint(Sketcher.Constraint("Coincident", 25, 2, 26, 2))
sketch5.addConstraint(Sketcher.Constraint("Coincident", 28, 1, 29, 1))
sketch5.addConstraint(Sketcher.Constraint("Coincident", 29, 2, 30, 1))
sketch5.addConstraint(Sketcher.Constraint("Coincident", 30, 2, 31, 1))
sketch5.addConstraint(Sketcher.Constraint("Coincident", 31, 2, 32, 2))
sketch5.addConstraint(Sketcher.Constraint("Horizontal", 0))
sketch5.addConstraint(Sketcher.Constraint("Vertical", 1))
sketch5.addConstraint(Sketcher.Constraint("Horizontal", 2))
sketch5.addConstraint(Sketcher.Constraint("Vertical", 3))
sketch5.addConstraint(Sketcher.Constraint("Horizontal", 4))
sketch5.addConstraint(Sketcher.Constraint("Vertical", 5))
sketch5.addConstraint(Sketcher.Constraint("Horizontal", 6))
sketch5.addConstraint(Sketcher.Constraint("Vertical", 7))
sketch5.addConstraint(Sketcher.Constraint("Vertical", 8))
sketch5.addConstraint(Sketcher.Constraint("Horizontal", 9))
sketch5.addConstraint(Sketcher.Constraint("Vertical", 10))
sketch5.addConstraint(Sketcher.Constraint("Horizontal", 11))
sketch5.addConstraint(Sketcher.Constraint("Vertical", 12))
sketch5.addConstraint(Sketcher.Constraint("Horizontal", 13))
sketch5.addConstraint(Sketcher.Constraint("Vertical", 14))
sketch5.addConstraint(Sketcher.Constraint("Horizontal", 15))
sketch5.addConstraint(Sketcher.Constraint("Horizontal", 29))
sketch5.addConstraint(Sketcher.Constraint("Vertical", 30))
sketch5.addConstraint(Sketcher.Constraint("Horizontal", 31))
sketch5.addConstraint(Sketcher.Constraint("Horizontal", 0, 2, 3, 2))
sketch5.addConstraint(Sketcher.Constraint("Vertical", 11, 2, 12, 2))
sketch5.addConstraint(Sketcher.Constraint("Vertical", 10, 2, 13, 2))
sketch5.addConstraint(Sketcher.Constraint("Equal", 0, 4))
sketch5.addConstraint(Sketcher.Constraint("Equal", 10, 12))
sketch5.addConstraint(Sketcher.Constraint("DistanceX", 4, 2, 0, 2, 1.0))
sketch5.addConstraint(Sketcher.Constraint("DistanceY", 5, 2, 2, 2, 2.0))
sketch5.addConstraint(Sketcher.Constraint("DistanceX", 31, 1, 31, 2, 0.179878))
sketch5.addConstraint(Sketcher.Constraint("DistanceY", 21, 2, 10, 2, 0.1875))
sketch5.addConstraint(Sketcher.Constraint("DistanceX", 0, 1, 0, 2, 0.560976))
sketch5.addConstraint(Sketcher.Constraint("DistanceX", 9, 1, 9, 2, 1.341463))
sketch5.addConstraint(Sketcher.Constraint("DistanceY", 1, 1, 1, 2, 0.341463))
sketch5.addConstraint(Sketcher.Constraint("DistanceY", 8, 2, 8, 1, 0.268293))
sketch5.addConstraint(Sketcher.Constraint("DistanceX", 9, 2, -1, 1, 0.331641))
sketch5.addConstraint(Sketcher.Constraint("DistanceY", 12, 2, -1, 1, 8.978329))
sketch5.addConstraint(Sketcher.Constraint("DistanceY", 8, 2, 1, 2, 1.02439))
sketch5.addConstraint(Sketcher.Constraint("DistanceX", 7, 2, 8, 2, 0.926829))
pocket3 = body.newObject("PartDesign::Pocket", "Pocket002")
pocket3.Profile = sketch5
pocket3.Length = 0.3

doc.recompute()
